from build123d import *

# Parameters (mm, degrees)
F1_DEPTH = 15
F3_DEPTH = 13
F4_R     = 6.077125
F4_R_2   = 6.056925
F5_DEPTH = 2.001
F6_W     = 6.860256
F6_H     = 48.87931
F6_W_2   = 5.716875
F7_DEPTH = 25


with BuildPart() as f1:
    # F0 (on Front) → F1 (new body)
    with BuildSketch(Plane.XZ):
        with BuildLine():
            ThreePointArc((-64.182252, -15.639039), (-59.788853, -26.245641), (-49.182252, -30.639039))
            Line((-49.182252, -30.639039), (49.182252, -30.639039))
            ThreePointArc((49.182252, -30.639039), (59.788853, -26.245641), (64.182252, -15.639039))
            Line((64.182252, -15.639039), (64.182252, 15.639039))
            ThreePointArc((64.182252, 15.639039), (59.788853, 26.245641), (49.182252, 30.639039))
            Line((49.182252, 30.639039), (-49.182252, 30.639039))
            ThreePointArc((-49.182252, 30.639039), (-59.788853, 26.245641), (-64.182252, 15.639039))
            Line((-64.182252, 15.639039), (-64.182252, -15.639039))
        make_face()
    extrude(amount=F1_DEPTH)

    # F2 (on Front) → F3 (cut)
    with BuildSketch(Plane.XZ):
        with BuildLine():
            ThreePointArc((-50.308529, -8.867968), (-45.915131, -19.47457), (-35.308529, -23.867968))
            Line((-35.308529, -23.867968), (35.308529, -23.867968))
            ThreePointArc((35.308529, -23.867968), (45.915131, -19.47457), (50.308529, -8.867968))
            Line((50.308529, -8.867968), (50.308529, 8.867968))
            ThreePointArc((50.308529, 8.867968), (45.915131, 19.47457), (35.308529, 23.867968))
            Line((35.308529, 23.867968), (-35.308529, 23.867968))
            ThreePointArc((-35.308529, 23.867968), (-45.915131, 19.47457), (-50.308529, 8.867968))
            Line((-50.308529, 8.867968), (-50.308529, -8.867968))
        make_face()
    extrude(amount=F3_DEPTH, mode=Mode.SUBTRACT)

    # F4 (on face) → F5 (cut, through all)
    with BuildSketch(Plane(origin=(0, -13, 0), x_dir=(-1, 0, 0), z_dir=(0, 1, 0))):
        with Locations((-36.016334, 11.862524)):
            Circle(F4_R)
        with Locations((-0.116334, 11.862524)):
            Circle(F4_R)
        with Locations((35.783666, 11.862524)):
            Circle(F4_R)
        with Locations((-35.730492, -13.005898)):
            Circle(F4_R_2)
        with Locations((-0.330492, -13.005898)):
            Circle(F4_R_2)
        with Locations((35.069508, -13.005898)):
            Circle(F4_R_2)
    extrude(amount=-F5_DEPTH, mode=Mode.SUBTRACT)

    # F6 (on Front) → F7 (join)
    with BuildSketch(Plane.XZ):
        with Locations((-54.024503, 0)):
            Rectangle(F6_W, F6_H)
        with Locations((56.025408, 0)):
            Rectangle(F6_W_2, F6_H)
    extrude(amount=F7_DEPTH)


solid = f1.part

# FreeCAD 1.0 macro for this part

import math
import FreeCAD as App
import Part
import Sketcher


def add_polygon(sketch, points):
    """Adds a closed chain of lines whose ends are joined by coincident constraints."""
    first, n = sketch.GeometryCount, len(points)
    for a, b in zip(points, points[1:] + points[:1]):
        sketch.addGeometry(Part.LineSegment(App.Vector(*a, 0), App.Vector(*b, 0)), False)
    for i in range(n):
        sketch.addConstraint(Sketcher.Constraint("Coincident", first + i, 2, first + (i + 1) % n, 1))

doc = App.newDocument("Part")
body = doc.addObject("PartDesign::Body", "Body")

# Sketch on XZ plane
sketch1 = doc.addObject("Sketcher::SketchObject", "Sketch")
body.addObject(sketch1)
sketch1.AttachmentSupport = (doc.XZ_Plane, [""])
sketch1.MapMode = "FlatFace"
sketch1.addGeometry([
    Part.ArcOfCircle(Part.Circle(App.Vector(-49.182251, -15.639038, 0), App.Vector(0, 0, 1), 15.000001), math.radians(-179.999997), math.radians(-90.000003)),  # 0
    Part.LineSegment(App.Vector(-49.182252, -30.639039, 0), App.Vector(49.182252, -30.639039, 0)),  # 1
    Part.ArcOfCircle(Part.Circle(App.Vector(49.182251, -15.639038, 0), App.Vector(0, 0, 1), 15.000001), math.radians(-89.999997), math.radians(-0.000003)),  # 2
    Part.LineSegment(App.Vector(64.182252, -15.639039, 0), App.Vector(64.182252, 15.639039, 0)),  # 3
    Part.ArcOfCircle(Part.Circle(App.Vector(49.182251, 15.639038, 0), App.Vector(0, 0, 1), 15.000001), math.radians(0.000003), math.radians(89.999997)),  # 4
    Part.LineSegment(App.Vector(49.182252, 30.639039, 0), App.Vector(-49.182252, 30.639039, 0)),  # 5
    Part.ArcOfCircle(Part.Circle(App.Vector(-49.182251, 15.639038, 0), App.Vector(0, 0, 1), 15.000001), math.radians(90.000003), math.radians(179.999997)),  # 6
    Part.LineSegment(App.Vector(-64.182252, 15.639039, 0), App.Vector(-64.182252, -15.639039, 0)),  # 7
], False)
sketch1.addConstraint([
    Sketcher.Constraint("Tangent", 0, 2, 1, 1),
    Sketcher.Constraint("Tangent", 1, 2, 2, 1),
    Sketcher.Constraint("Tangent", 2, 2, 3, 1),
    Sketcher.Constraint("Tangent", 3, 2, 4, 1),
    Sketcher.Constraint("Tangent", 4, 2, 5, 1),
    Sketcher.Constraint("Tangent", 5, 2, 6, 1),
    Sketcher.Constraint("Tangent", 6, 2, 7, 1),
    Sketcher.Constraint("Tangent", 7, 2, 0, 1),
    Sketcher.Constraint("Horizontal", 1),
    Sketcher.Constraint("Vertical", 3),
    Sketcher.Constraint("Horizontal", 5),
    Sketcher.Constraint("Vertical", 7),
    Sketcher.Constraint("Equal", 0, 2),
    Sketcher.Constraint("Equal", 2, 4),
    Sketcher.Constraint("Equal", 4, 6),
    Sketcher.Constraint("Symmetric", 0, 3, 4, 3, -1, 1),
    Sketcher.Constraint("Radius", 0, 15.000001),
    Sketcher.Constraint("DistanceY", 3, 1, 3, 2, 31.278078),
    Sketcher.Constraint("DistanceX", 1, 1, 1, 2, 98.364504),
])
pad1 = doc.addObject("PartDesign::Pad", "Pad")
body.addObject(pad1)
pad1.Profile = sketch1
pad1.Length = 15

# Sketch on XZ plane
sketch2 = doc.addObject("Sketcher::SketchObject", "Sketch001")
body.addObject(sketch2)
sketch2.AttachmentSupport = (doc.XZ_Plane, [""])
sketch2.MapMode = "FlatFace"
sketch2.addGeometry([
    Part.ArcOfCircle(Part.Circle(App.Vector(-35.30853, -8.867969, 0), App.Vector(0, 0, 1), 14.999999), math.radians(179.999996), math.radians(270.000004)),  # 0
    Part.LineSegment(App.Vector(-35.308529, -23.867968, 0), App.Vector(35.308529, -23.867968, 0)),  # 1
    Part.ArcOfCircle(Part.Circle(App.Vector(35.30853, -8.867969, 0), App.Vector(0, 0, 1), 14.999999), math.radians(-90.000004), math.radians(0.000004)),  # 2
    Part.LineSegment(App.Vector(50.308529, -8.867968, 0), App.Vector(50.308529, 8.867968, 0)),  # 3
    Part.ArcOfCircle(Part.Circle(App.Vector(35.30853, 8.867969, 0), App.Vector(0, 0, 1), 14.999999), math.radians(-0.000004), math.radians(90.000004)),  # 4
    Part.LineSegment(App.Vector(35.308529, 23.867968, 0), App.Vector(-35.308529, 23.867968, 0)),  # 5
    Part.ArcOfCircle(Part.Circle(App.Vector(-35.30853, 8.867969, 0), App.Vector(0, 0, 1), 14.999999), math.radians(89.999996), math.radians(180.000004)),  # 6
    Part.LineSegment(App.Vector(-50.308529, 8.867968, 0), App.Vector(-50.308529, -8.867968, 0)),  # 7
], False)
sketch2.addConstraint([
    Sketcher.Constraint("Tangent", 0, 2, 1, 1),
    Sketcher.Constraint("Tangent", 1, 2, 2, 1),
    Sketcher.Constraint("Tangent", 2, 2, 3, 1),
    Sketcher.Constraint("Tangent", 3, 2, 4, 1),
    Sketcher.Constraint("Tangent", 4, 2, 5, 1),
    Sketcher.Constraint("Tangent", 5, 2, 6, 1),
    Sketcher.Constraint("Tangent", 6, 2, 7, 1),
    Sketcher.Constraint("Tangent", 7, 2, 0, 1),
    Sketcher.Constraint("Horizontal", 1),
    Sketcher.Constraint("Vertical", 3),
    Sketcher.Constraint("Horizontal", 5),
    Sketcher.Constraint("Vertical", 7),
    Sketcher.Constraint("Equal", 0, 2),
    Sketcher.Constraint("Equal", 2, 4),
    Sketcher.Constraint("Equal", 4, 6),
    Sketcher.Constraint("Symmetric", 0, 3, 4, 3, -1, 1),
    Sketcher.Constraint("Radius", 0, 14.999999),
    Sketcher.Constraint("DistanceX", 1, 1, 1, 2, 70.617058),
    Sketcher.Constraint("DistanceY", 3, 1, 3, 2, 17.735936),
])
pocket1 = doc.addObject("PartDesign::Pocket", "Pocket")
body.addObject(pocket1)
pocket1.Profile = sketch2
pocket1.Length = 13
pocket1.Reversed = True

# Sketch on XZ plane
sketch3 = doc.addObject("Sketcher::SketchObject", "Sketch002")
body.addObject(sketch3)
sketch3.AttachmentSupport = (doc.XZ_Plane, [""])
sketch3.MapMode = "FlatFace"
sketch3.AttachmentOffset = App.Placement(App.Vector(0, 0, 13), App.Rotation())
sketch3.addGeometry([
    Part.Circle(App.Vector(36.016334, 11.862524, 0), App.Vector(0, 0, 1), 6.077125),  # 0
    Part.Circle(App.Vector(0.116334, 11.862524, 0), App.Vector(0, 0, 1), 6.077125),  # 1
    Part.Circle(App.Vector(-35.783666, 11.862524, 0), App.Vector(0, 0, 1), 6.077125),  # 2
    Part.Circle(App.Vector(35.730492, -13.005898, 0), App.Vector(0, 0, 1), 6.056925),  # 3
    Part.Circle(App.Vector(0.330492, -13.005898, 0), App.Vector(0, 0, 1), 6.056925),  # 4
    Part.Circle(App.Vector(-35.069508, -13.005898, 0), App.Vector(0, 0, 1), 6.056925),  # 5
], False)
sketch3.addConstraint([
    Sketcher.Constraint("Equal", 0, 1),
    Sketcher.Constraint("Equal", 1, 2),
    Sketcher.Constraint("Equal", 3, 4),
    Sketcher.Constraint("Equal", 4, 5),
    Sketcher.Constraint("Horizontal", 0, 3, 1, 3),
    Sketcher.Constraint("Horizontal", 1, 3, 2, 3),
    Sketcher.Constraint("Horizontal", 3, 3, 4, 3),
    Sketcher.Constraint("Horizontal", 4, 3, 5, 3),
    Sketcher.Constraint("DistanceX", 1, 3, 0, 3, 35.9),
    Sketcher.Constraint("DistanceX", 2, 3, 1, 3, 35.9),
    Sketcher.Constraint("DistanceX", 4, 3, 3, 3, 35.4),
    Sketcher.Constraint("DistanceX", 5, 3, 4, 3, 35.4),
    Sketcher.Constraint("Diameter", 0, 12.15425),
    Sketcher.Constraint("Diameter", 3, 12.11385),
    Sketcher.Constraint("DistanceX", -1, 1, 3, 3, 35.730492),
    Sketcher.Constraint("DistanceX", 1, 3, 4, 3, 0.214158),
    Sketcher.Constraint("DistanceY", -1, 1, 0, 3, 11.862524),
    Sketcher.Constraint("DistanceY", 3, 3, -1, 1, 13.005898),
])
pocket2 = doc.addObject("PartDesign::Pocket", "Pocket001")
body.addObject(pocket2)
pocket2.Profile = sketch3
pocket2.Type = "ThroughAll"
pocket2.Reversed = True

# Sketch on XZ plane
sketch4 = doc.addObject("Sketcher::SketchObject", "Sketch003")
body.addObject(sketch4)
sketch4.AttachmentSupport = (doc.XZ_Plane, [""])
sketch4.MapMode = "FlatFace"
add_polygon(sketch4, [(-57.454631, 24.439655), (-57.454631, -24.439655), (-50.594375, -24.439655), (-50.594375, 24.439655)])  # lines 0-3
add_polygon(sketch4, [(53.16697, 24.439655), (53.16697, -24.439655), (58.883845, -24.439655), (58.883845, 24.439655)])  # lines 4-7
sketch4.addConstraint([
    Sketcher.Constraint("Vertical", 0),
    Sketcher.Constraint("Horizontal", 1),
    Sketcher.Constraint("Vertical", 2),
    Sketcher.Constraint("Horizontal", 3),
    Sketcher.Constraint("Vertical", 4),
    Sketcher.Constraint("Horizontal", 5),
    Sketcher.Constraint("Vertical", 6),
    Sketcher.Constraint("Horizontal", 7),
    Sketcher.Constraint("Horizontal", 1, 2, 4, 2),
    Sketcher.Constraint("Horizontal", 3, 2, 6, 2),
    Sketcher.Constraint("DistanceY", 0, 2, 0, 1, 48.87931),
    Sketcher.Constraint("DistanceX", 0, 2, 4, 2, 110.621601),
    Sketcher.Constraint("DistanceX", 1, 1, 1, 2, 6.860256),
    Sketcher.Constraint("DistanceX", 5, 1, 5, 2, 5.716875),
    Sketcher.Constraint("DistanceX", 0, 2, -1, 1, 57.454631),
    Sketcher.Constraint("DistanceY", 0, 2, -1, 1, 24.439655),
])
pad2 = doc.addObject("PartDesign::Pad", "Pad001")
body.addObject(pad2)
pad2.Profile = sketch4
pad2.Length = 25

doc.recompute()
